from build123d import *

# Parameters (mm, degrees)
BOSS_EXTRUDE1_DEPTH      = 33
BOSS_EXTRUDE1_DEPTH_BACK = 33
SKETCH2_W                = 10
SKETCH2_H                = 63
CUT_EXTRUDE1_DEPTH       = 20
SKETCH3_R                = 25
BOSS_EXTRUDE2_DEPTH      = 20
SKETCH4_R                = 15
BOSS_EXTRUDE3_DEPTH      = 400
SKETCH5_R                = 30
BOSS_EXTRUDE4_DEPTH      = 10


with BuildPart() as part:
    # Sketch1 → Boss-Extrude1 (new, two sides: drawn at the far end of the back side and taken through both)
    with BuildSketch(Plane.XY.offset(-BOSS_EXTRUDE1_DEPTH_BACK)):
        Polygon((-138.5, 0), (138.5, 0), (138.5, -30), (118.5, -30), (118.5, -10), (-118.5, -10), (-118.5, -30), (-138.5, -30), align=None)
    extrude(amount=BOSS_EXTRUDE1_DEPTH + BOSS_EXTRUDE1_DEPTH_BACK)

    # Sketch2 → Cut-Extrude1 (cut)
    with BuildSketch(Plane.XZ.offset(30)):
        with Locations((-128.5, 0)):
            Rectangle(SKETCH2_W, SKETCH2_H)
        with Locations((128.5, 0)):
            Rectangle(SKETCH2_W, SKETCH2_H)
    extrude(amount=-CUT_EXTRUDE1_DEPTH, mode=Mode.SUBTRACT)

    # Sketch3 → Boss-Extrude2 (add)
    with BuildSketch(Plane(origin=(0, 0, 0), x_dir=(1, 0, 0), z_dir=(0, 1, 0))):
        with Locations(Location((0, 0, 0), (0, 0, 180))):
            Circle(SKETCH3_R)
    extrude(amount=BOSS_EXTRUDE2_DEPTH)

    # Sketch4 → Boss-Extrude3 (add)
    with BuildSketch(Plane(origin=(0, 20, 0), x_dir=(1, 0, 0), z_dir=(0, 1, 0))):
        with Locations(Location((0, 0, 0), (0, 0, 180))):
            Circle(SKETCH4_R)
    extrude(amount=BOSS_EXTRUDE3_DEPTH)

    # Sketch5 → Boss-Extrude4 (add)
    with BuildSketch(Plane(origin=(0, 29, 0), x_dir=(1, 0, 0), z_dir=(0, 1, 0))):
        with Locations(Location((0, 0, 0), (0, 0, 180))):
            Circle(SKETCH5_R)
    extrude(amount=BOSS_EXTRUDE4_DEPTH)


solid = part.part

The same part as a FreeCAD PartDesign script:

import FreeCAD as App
import Part
import Sketcher
Q = App.Units.Quantity


def add_polygon(sketch, points):
    """Adds a closed chain of lines whose ends are joined by coincident constraints."""
    first, n = sketch.GeometryCount, len(points)
    for a, b in zip(points, points[1:] + points[:1]):
        sketch.addGeometry(Part.LineSegment(App.Vector(*a, 0), App.Vector(*b, 0)), False)
    for i in range(n):
        sketch.addConstraint(Sketcher.Constraint("Coincident", first + i, 2, first + (i + 1) % n, 1))

doc = App.newDocument("Part")
body = doc.addObject("PartDesign::Body", "Body")

# Sketch on XY plane
sketch1 = doc.addObject("Sketcher::SketchObject", "Sketch")
body.addObject(sketch1)
sketch1.AttachmentSupport = (doc.XY_Plane, [""])
sketch1.MapMode = "FlatFace"
add_polygon(sketch1, [(138.5, 0), (-138.5, 0), (-138.5, -30), (-118.5, -30), (-118.5, -10), (118.5, -10), (118.5, -30), (138.5, -30)])  # lines 0-7
sketch1.addConstraint([
    Sketcher.Constraint("Horizontal", 0),
    Sketcher.Constraint("Vertical", 1),
    Sketcher.Constraint("Horizontal", 2),
    Sketcher.Constraint("Vertical", 3),
    Sketcher.Constraint("Horizontal", 4),
    Sketcher.Constraint("Vertical", 5),
    Sketcher.Constraint("Horizontal", 6),
    Sketcher.Constraint("Vertical", 7),
    Sketcher.Constraint("Symmetric", 0, 2, 7, 2, -1, 1),
    Sketcher.Constraint("Symmetric", 2, 2, 5, 2, -2),
    Sketcher.Constraint("Equal", 6, 3),
    Sketcher.Constraint("DistanceX", 0, 2, 0, 1, Q("277 mm")),
    Sketcher.Constraint("DistanceX", 2, 1, 2, 2, Q("20 mm")),
    Sketcher.Constraint("DistanceY", 1, 2, 1, 1, Q("30 mm")),
])
pad1 = doc.addObject("PartDesign::Pad", "Pad")
body.addObject(pad1)
pad1.Profile = sketch1
pad1.Type = "TwoLengths"
pad1.Length = 33
pad1.Length2 = 33

# Sketch on XZ plane
sketch2 = doc.addObject("Sketcher::SketchObject", "Sketch001")
body.addObject(sketch2)
sketch2.AttachmentSupport = (doc.XZ_Plane, [""])
sketch2.MapMode = "FlatFace"
sketch2.AttachmentOffset = App.Placement(App.Vector(0, 0, 30), App.Rotation())
add_polygon(sketch2, [(-133.5, 31.5), (-133.5, -31.5), (-123.5, -31.5), (-123.5, 31.5)])  # lines 0-3
add_polygon(sketch2, [(123.5, 31.5), (123.5, -31.5), (133.5, -31.5), (133.5, 31.5)])  # lines 4-7
sketch2.addConstraint([
    Sketcher.Constraint("Vertical", 0),
    Sketcher.Constraint("Horizontal", 1),
    Sketcher.Constraint("Vertical", 2),
    Sketcher.Constraint("Horizontal", 3),
    Sketcher.Constraint("Vertical", 4),
    Sketcher.Constraint("Horizontal", 5),
    Sketcher.Constraint("Vertical", 6),
    Sketcher.Constraint("Horizontal", 7),
    Sketcher.Constraint("Symmetric", 2, 2, 4, 2, -1, 1),
    Sketcher.Constraint("Symmetric", 0, 2, 6, 2, -1, 1),
    Sketcher.Constraint("Horizontal", 1, 2, 4, 2),
    Sketcher.Constraint("DistanceX", 1, 1, 1, 2, Q("10 mm")),
    Sketcher.Constraint("DistanceY", 0, 2, 0, 1, Q("63 mm")),
    Sketcher.Constraint("DistanceX", 1, 2, 4, 2, Q("247 mm")),
])
pocket1 = doc.addObject("PartDesign::Pocket", "Pocket")
body.addObject(pocket1)
pocket1.Profile = sketch2
pocket1.Length = 20

# Sketch on XZ plane
sketch3 = doc.addObject("Sketcher::SketchObject", "Sketch002")
body.addObject(sketch3)
sketch3.AttachmentSupport = (doc.XZ_Plane, [""])
sketch3.MapMode = "FlatFace"
sketch3.addGeometry(Part.Circle(App.Vector(0, 0, 0), App.Vector(0, 0, 1), 25), False)
sketch3.addConstraint([
    Sketcher.Constraint("Coincident", 0, 3, -1, 1),
    Sketcher.Constraint("Diameter", 0, Q("50 mm")),
])
pad2 = doc.addObject("PartDesign::Pad", "Pad001")
body.addObject(pad2)
pad2.Profile = sketch3
pad2.Length = 20
pad2.Reversed = True

# Sketch on XZ plane
sketch4 = doc.addObject("Sketcher::SketchObject", "Sketch003")
body.addObject(sketch4)
sketch4.AttachmentSupport = (doc.XZ_Plane, [""])
sketch4.MapMode = "FlatFace"
sketch4.AttachmentOffset = App.Placement(App.Vector(0, 0, -20), App.Rotation())
sketch4.addGeometry(Part.Circle(App.Vector(0, 0, 0), App.Vector(0, 0, 1), 15), False)
sketch4.addConstraint([
    Sketcher.Constraint("Coincident", 0, 3, -1, 1),
    Sketcher.Constraint("Diameter", 0, Q("30 mm")),
])
pad3 = doc.addObject("PartDesign::Pad", "Pad002")
body.addObject(pad3)
pad3.Profile = sketch4
pad3.Length = 400
pad3.Reversed = True

# Sketch on XZ plane
sketch5 = doc.addObject("Sketcher::SketchObject", "Sketch004")
body.addObject(sketch5)
sketch5.AttachmentSupport = (doc.XZ_Plane, [""])
sketch5.MapMode = "FlatFace"
sketch5.AttachmentOffset = App.Placement(App.Vector(0, 0, -29), App.Rotation())
sketch5.addGeometry(Part.Circle(App.Vector(0, 0, 0), App.Vector(0, 0, 1), 30), False)
sketch5.addConstraint([
    Sketcher.Constraint("Coincident", 0, 3, -1, 1),
    Sketcher.Constraint("Diameter", 0, Q("60 mm")),
])
pad4 = doc.addObject("PartDesign::Pad", "Pad003")
body.addObject(pad4)
pad4.Profile = sketch5
pad4.Length = 10
pad4.Reversed = True

doc.recompute()
